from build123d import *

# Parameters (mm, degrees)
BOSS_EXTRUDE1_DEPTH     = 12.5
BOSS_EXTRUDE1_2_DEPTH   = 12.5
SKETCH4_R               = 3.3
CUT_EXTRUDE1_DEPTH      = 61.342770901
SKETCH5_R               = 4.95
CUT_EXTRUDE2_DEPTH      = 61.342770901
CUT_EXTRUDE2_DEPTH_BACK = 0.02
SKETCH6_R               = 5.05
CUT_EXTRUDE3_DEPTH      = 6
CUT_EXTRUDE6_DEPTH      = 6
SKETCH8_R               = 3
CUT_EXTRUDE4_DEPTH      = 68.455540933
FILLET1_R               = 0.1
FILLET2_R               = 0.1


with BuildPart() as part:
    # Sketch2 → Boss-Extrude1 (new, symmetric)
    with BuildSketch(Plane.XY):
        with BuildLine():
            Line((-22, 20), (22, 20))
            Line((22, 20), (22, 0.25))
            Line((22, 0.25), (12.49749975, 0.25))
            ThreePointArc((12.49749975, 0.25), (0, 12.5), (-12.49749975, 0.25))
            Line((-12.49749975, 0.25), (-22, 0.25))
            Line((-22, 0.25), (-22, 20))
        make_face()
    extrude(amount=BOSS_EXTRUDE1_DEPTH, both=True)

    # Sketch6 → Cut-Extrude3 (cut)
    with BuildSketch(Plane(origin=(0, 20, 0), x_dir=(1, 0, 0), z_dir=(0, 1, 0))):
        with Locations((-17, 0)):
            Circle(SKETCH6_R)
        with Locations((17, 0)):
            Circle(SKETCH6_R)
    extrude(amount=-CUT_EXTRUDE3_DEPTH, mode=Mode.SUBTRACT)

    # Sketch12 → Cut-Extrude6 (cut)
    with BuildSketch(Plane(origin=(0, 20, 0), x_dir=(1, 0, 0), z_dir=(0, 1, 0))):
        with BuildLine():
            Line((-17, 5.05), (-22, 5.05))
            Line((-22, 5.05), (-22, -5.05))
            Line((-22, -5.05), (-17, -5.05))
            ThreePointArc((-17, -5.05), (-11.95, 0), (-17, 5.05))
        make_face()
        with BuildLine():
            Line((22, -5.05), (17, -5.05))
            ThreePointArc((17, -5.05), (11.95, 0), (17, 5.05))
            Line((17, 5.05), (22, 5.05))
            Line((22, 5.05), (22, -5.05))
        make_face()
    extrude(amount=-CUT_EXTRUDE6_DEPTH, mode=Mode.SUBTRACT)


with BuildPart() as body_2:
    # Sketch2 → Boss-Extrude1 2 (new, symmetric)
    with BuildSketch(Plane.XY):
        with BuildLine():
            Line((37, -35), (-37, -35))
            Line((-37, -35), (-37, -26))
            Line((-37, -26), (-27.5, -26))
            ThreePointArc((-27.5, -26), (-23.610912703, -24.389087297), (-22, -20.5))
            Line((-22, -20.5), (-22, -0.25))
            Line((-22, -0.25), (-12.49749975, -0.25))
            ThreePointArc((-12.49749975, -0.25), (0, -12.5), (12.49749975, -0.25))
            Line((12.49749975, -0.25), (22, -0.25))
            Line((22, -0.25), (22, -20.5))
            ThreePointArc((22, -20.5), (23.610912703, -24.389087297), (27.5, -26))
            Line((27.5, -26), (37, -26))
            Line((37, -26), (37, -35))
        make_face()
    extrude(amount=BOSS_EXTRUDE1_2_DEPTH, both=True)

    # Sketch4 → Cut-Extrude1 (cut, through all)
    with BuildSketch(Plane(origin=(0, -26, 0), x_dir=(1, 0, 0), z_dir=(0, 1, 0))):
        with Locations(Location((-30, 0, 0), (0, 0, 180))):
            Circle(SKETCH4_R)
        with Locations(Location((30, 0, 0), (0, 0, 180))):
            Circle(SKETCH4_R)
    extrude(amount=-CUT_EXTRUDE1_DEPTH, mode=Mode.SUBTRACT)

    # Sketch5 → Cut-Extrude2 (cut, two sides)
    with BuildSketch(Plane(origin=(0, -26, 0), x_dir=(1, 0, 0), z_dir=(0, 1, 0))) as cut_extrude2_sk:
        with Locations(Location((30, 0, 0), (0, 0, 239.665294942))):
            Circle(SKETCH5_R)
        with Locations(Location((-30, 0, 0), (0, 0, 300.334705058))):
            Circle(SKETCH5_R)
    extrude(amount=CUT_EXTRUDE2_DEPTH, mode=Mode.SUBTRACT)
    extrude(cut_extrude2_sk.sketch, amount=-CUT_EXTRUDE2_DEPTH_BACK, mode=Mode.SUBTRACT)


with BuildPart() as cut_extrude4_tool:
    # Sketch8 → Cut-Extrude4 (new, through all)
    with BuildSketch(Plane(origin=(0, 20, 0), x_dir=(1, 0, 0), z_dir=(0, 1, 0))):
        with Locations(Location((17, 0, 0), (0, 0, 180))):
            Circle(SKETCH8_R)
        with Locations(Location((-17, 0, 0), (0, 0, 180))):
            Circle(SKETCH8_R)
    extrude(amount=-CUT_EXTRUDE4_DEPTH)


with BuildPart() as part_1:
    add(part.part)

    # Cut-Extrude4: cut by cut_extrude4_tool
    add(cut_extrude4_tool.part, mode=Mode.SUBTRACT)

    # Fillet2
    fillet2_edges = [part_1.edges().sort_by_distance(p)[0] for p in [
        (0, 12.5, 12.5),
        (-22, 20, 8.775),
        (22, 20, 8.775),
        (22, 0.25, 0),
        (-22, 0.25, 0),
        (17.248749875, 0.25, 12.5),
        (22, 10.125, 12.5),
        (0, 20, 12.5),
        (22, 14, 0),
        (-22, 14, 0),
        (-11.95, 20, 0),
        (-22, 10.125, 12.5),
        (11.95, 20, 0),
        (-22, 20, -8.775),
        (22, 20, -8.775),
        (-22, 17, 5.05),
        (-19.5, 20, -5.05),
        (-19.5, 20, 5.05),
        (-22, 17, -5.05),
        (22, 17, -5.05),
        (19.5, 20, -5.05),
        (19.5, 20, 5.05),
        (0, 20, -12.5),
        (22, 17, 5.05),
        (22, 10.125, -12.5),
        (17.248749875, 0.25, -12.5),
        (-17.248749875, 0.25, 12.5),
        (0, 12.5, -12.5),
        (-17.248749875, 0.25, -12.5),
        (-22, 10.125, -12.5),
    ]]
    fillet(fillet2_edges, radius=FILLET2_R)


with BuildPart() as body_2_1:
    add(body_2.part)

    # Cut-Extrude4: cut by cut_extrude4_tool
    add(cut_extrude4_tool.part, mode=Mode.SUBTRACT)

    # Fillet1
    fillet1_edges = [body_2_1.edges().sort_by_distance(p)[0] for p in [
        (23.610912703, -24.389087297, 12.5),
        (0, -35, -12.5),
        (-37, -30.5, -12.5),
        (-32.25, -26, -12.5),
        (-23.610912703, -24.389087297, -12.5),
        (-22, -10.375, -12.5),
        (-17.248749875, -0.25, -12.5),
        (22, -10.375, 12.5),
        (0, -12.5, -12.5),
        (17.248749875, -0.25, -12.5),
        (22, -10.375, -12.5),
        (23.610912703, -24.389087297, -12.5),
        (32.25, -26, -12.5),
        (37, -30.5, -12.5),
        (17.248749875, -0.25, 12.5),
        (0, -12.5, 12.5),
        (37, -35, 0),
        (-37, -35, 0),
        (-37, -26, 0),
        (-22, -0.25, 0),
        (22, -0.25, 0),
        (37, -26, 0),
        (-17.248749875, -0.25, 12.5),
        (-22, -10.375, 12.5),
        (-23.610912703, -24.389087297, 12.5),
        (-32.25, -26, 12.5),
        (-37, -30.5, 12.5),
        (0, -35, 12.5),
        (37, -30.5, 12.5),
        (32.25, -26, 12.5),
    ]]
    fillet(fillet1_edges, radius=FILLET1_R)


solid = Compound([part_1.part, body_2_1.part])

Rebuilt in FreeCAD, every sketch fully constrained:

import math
import FreeCAD as App
import Part
import Sketcher
from FreeCAD import Vector


def edges_at(feature, points):
    """Names of the edges that pass closest to the given points."""
    edges = feature.Shape.Edges
    near = lambda p: min(range(len(edges)), key=lambda i: edges[i].distToShape(Part.Vertex(*p))[0])
    return sorted({f"Edge{near(p) + 1}" for p in points})

doc = App.newDocument("Part")
body = doc.addObject("PartDesign::Body", "Body")

# Sketch on XY plane
sketch1 = body.newObject("Sketcher::SketchObject", "Sketch")
sketch1.AttachmentSupport = (doc.getObject("XY_Plane"), [""])
sketch1.MapMode = "FlatFace"
sketch1.addGeometry([
    Part.LineSegment(Vector(22, 20, 0), Vector(-22, 20, 0)),  # 0
    Part.LineSegment(Vector(-22, 20, 0), Vector(-22, 0, 0)),  # 1
    Part.LineSegment(Vector(-22, 0, 0), Vector(-12, 0, 0)),  # 2
    Part.ArcOfCircle(Part.Circle(Vector(0, 0, 0), Vector(0, 0, 1), 12), math.radians(1), math.radians(179)),  # 3
    Part.LineSegment(Vector(12, 0, 0), Vector(22, 0, 0)),  # 4
    Part.LineSegment(Vector(22, 0, 0), Vector(22, 20, 0)),  # 5
], False)
sketch1.addConstraint([
    Sketcher.Constraint("Coincident", 0, 2, 1, 1),
    Sketcher.Constraint("Coincident", 1, 2, 2, 1),
    Sketcher.Constraint("Coincident", 2, 2, 3, 2),
    Sketcher.Constraint("Coincident", 3, 1, 4, 1),
    Sketcher.Constraint("Coincident", 4, 2, 5, 1),
    Sketcher.Constraint("Coincident", 5, 2, 0, 1),
    Sketcher.Constraint("Horizontal", 0),
    Sketcher.Constraint("Vertical", 1),
    Sketcher.Constraint("Horizontal", 2),
    Sketcher.Constraint("Horizontal", 4),
    Sketcher.Constraint("Vertical", 5),
    Sketcher.Constraint("Coincident", 3, 3, -1, 1),
    Sketcher.Constraint("Symmetric", 1, 2, 4, 2, -2),
    Sketcher.Constraint("Radius", 3, 12.5),
    Sketcher.Constraint("DistanceX", 0, 2, 0, 1, 44.0),
    Sketcher.Constraint("DistanceY", -1, 1, 0, 2, 20.0),
    Sketcher.Constraint("DistanceY", 1, 2, 1, 1, 19.75),
])
pad1 = body.newObject("PartDesign::Pad", "Pad")
pad1.Profile = sketch1
pad1.Length = 25
pad1.Midplane = True

# Sketch on XZ plane
sketch2 = body.newObject("Sketcher::SketchObject", "Sketch001")
sketch2.AttachmentSupport = (doc.getObject("XZ_Plane"), [""])
sketch2.MapMode = "FlatFace"
sketch2.AttachmentOffset = App.Placement(Vector(0, 0, -20), App.Rotation())
sketch2.addGeometry([
    Part.Circle(Vector(-17, 0, 0), Vector(0, 0, 1), 5),
    Part.Circle(Vector(17, 0, 0), Vector(0, 0, 1), 5),
], False)
sketch2.addConstraint([
    Sketcher.Constraint("Equal", 0, 1),
    Sketcher.Constraint("Symmetric", 0, 3, 1, 3, -1, 1),
    Sketcher.Constraint("PointOnObject", 0, 3, -1),
    Sketcher.Constraint("Diameter", 0, 10.1),
    Sketcher.Constraint("DistanceX", 0, 3, -1, 1, 17.0),
])
pocket1 = body.newObject("PartDesign::Pocket", "Pocket")
pocket1.Profile = sketch2
pocket1.Length = 6
pocket1.Reversed = True

# Sketch on XZ plane
sketch3 = body.newObject("Sketcher::SketchObject", "Sketch002")
sketch3.AttachmentSupport = (doc.getObject("XZ_Plane"), [""])
sketch3.MapMode = "FlatFace"
sketch3.AttachmentOffset = App.Placement(Vector(0, 0, -20), App.Rotation())
sketch3.addGeometry([
    Part.LineSegment(Vector(-17, -5, 0), Vector(-22, -5, 0)),  # 0
    Part.LineSegment(Vector(-22, -5, 0), Vector(-22, 5, 0)),  # 1
    Part.LineSegment(Vector(-22, 5, 0), Vector(-17, 5, 0)),  # 2
    Part.ArcOfCircle(Part.Circle(Vector(-17, 0, 0), Vector(0, 0, 1), 5), math.radians(-90), math.radians(90)),  # 3
    Part.LineSegment(Vector(17, 5, 0), Vector(22, 5, 0)),  # 4
    Part.LineSegment(Vector(22, 5, 0), Vector(22, -5, 0)),  # 5
    Part.LineSegment(Vector(22, -5, 0), Vector(17, -5, 0)),  # 6
    Part.ArcOfCircle(Part.Circle(Vector(17, 0, 0), Vector(0, 0, 1), 5), math.radians(90), math.radians(270)),  # 7
], False)
sketch3.addConstraint([
    Sketcher.Constraint("Coincident", 0, 2, 1, 1),
    Sketcher.Constraint("Coincident", 1, 2, 2, 1),
    Sketcher.Constraint("Tangent", 2, 2, 3, 2),
    Sketcher.Constraint("Tangent", 3, 1, 0, 1),
    Sketcher.Constraint("Coincident", 4, 2, 5, 1),
    Sketcher.Constraint("Coincident", 5, 2, 6, 1),
    Sketcher.Constraint("Tangent", 6, 2, 7, 2),
    Sketcher.Constraint("Tangent", 7, 1, 4, 1),
    Sketcher.Constraint("Horizontal", 0),
    Sketcher.Constraint("Vertical", 1),
    Sketcher.Constraint("Horizontal", 2),
    Sketcher.Constraint("Horizontal", 4),
    Sketcher.Constraint("Vertical", 5),
    Sketcher.Constraint("Horizontal", 6),
    Sketcher.Constraint("Equal", 3, 7),
    Sketcher.Constraint("Symmetric", 3, 3, 7, 3, -1, 1),
    Sketcher.Constraint("Symmetric", 1, 2, 4, 2, -2),
    Sketcher.Constraint("DistanceX", 0, 2, 0, 1, 5.0),
    Sketcher.Constraint("Radius", 3, 5.05),
    Sketcher.Constraint("DistanceX", 3, 3, -1, 1, 17.0),
])
pocket2 = body.newObject("PartDesign::Pocket", "Pocket001")
pocket2.Profile = sketch3
pocket2.Length = 6
pocket2.Reversed = True
body2 = doc.addObject("PartDesign::Body", "Body001")

# Sketch on XY plane
sketch4 = body2.newObject("Sketcher::SketchObject", "Sketch003")
sketch4.AttachmentSupport = (doc.getObject("XY_Plane001"), [""])
sketch4.MapMode = "FlatFace"
sketch4.addGeometry([
    Part.LineSegment(Vector(-37, -35, 0), Vector(37, -35, 0)),  # 0
    Part.LineSegment(Vector(37, -35, 0), Vector(37, -26, 0)),  # 1
    Part.LineSegment(Vector(37, -26, 0), Vector(28, -26, 0)),  # 2
    Part.ArcOfCircle(Part.Circle(Vector(27, -21, 0), Vector(0, 0, 1), 5), math.radians(180), math.radians(270)),  # 3
    Part.LineSegment(Vector(22, -20, 0), Vector(22, 0, 0)),  # 4
    Part.LineSegment(Vector(22, 0, 0), Vector(12, 0, 0)),  # 5
    Part.ArcOfCircle(Part.Circle(Vector(0, 0, 0), Vector(0, 0, 1), 12), math.radians(-179), math.radians(-1)),  # 6
    Part.LineSegment(Vector(-12, 0, 0), Vector(-22, 0, 0)),  # 7
    Part.LineSegment(Vector(-22, 0, 0), Vector(-22, -20, 0)),  # 8
    Part.ArcOfCircle(Part.Circle(Vector(-27, -21, 0), Vector(0, 0, 1), 5), math.radians(-90), math.radians(0)),  # 9
    Part.LineSegment(Vector(-28, -26, 0), Vector(-37, -26, 0)),  # 10
    Part.LineSegment(Vector(-37, -26, 0), Vector(-37, -35, 0)),  # 11
], False)
sketch4.addConstraint([
    Sketcher.Constraint("Coincident", 0, 2, 1, 1),
    Sketcher.Constraint("Coincident", 1, 2, 2, 1),
    Sketcher.Constraint("Tangent", 2, 2, 3, 2),
    Sketcher.Constraint("Tangent", 3, 1, 4, 1),
    Sketcher.Constraint("Coincident", 4, 2, 5, 1),
    Sketcher.Constraint("Coincident", 5, 2, 6, 2),
    Sketcher.Constraint("Coincident", 6, 1, 7, 1),
    Sketcher.Constraint("Coincident", 7, 2, 8, 1),
    Sketcher.Constraint("Tangent", 8, 2, 9, 2),
    Sketcher.Constraint("Tangent", 9, 1, 10, 1),
    Sketcher.Constraint("Coincident", 10, 2, 11, 1),
    Sketcher.Constraint("Coincident", 11, 2, 0, 1),
    Sketcher.Constraint("Horizontal", 0),
    Sketcher.Constraint("Vertical", 1),
    Sketcher.Constraint("Horizontal", 2),
    Sketcher.Constraint("Vertical", 4),
    Sketcher.Constraint("Horizontal", 5),
    Sketcher.Constraint("Horizontal", 7),
    Sketcher.Constraint("Vertical", 8),
    Sketcher.Constraint("Horizontal", 10),
    Sketcher.Constraint("Vertical", 11),
    Sketcher.Constraint("Coincident", 6, 3, -1, 1),
    Sketcher.Constraint("Equal", 3, 9),
    Sketcher.Constraint("Symmetric", 3, 3, 9, 3, -2),
    Sketcher.Constraint("Horizontal", 5, 2, 6, 1),
    Sketcher.Constraint("Equal", 2, 10),
    Sketcher.Constraint("Radius", 3, 5.5),
    Sketcher.Constraint("Radius", 6, 12.5),
    Sketcher.Constraint("DistanceX", 0, 1, 0, 2, 74.0),
    Sketcher.Constraint("DistanceY", 1, 1, 1, 2, 9.0),
    Sketcher.Constraint("DistanceX", 2, 2, 2, 1, 9.5),
    Sketcher.Constraint("DistanceY", 0, 2, -1, 1, 35.0),
    Sketcher.Constraint("DistanceY", 4, 1, 4, 2, 20.25),
])
pad2 = body2.newObject("PartDesign::Pad", "Pad001")
pad2.Profile = sketch4
pad2.Length = 25
pad2.Midplane = True

# Sketch on XZ plane
sketch5 = body2.newObject("Sketcher::SketchObject", "Sketch004")
sketch5.AttachmentSupport = (doc.getObject("XZ_Plane001"), [""])
sketch5.MapMode = "FlatFace"
sketch5.AttachmentOffset = App.Placement(Vector(0, 0, 26), App.Rotation())
sketch5.addGeometry([
    Part.Circle(Vector(-30, 0, 0), Vector(0, 0, 1), 3.3),
    Part.Circle(Vector(30, 0, 0), Vector(0, 0, 1), 3.3),
], False)
sketch5.addConstraint([
    Sketcher.Constraint("Equal", 0, 1),
    Sketcher.Constraint("Symmetric", 0, 3, 1, 3, -1, 1),
    Sketcher.Constraint("PointOnObject", 0, 3, -1),
    Sketcher.Constraint("Diameter", 0, 6.6),
    Sketcher.Constraint("DistanceX", 0, 3, -1, 1, 30.0),
])
pocket3 = body2.newObject("PartDesign::Pocket", "Pocket002")
pocket3.Profile = sketch5
pocket3.Type = "ThroughAll"
pocket3.Reversed = True

# Sketch on XZ plane
sketch6 = body2.newObject("Sketcher::SketchObject", "Sketch005")
sketch6.AttachmentSupport = (doc.getObject("XZ_Plane001"), [""])
sketch6.MapMode = "FlatFace"
sketch6.AttachmentOffset = App.Placement(Vector(0, 0, 26), App.Rotation())
sketch6.addGeometry([
    Part.Circle(Vector(30, 0, 0), Vector(0, 0, 1), 5),
    Part.Circle(Vector(-30, 0, 0), Vector(0, 0, 1), 5),
], False)
sketch6.addConstraint([
    Sketcher.Constraint("Equal", 0, 1),
    Sketcher.Constraint("Symmetric", 0, 3, 1, 3, -1, 1),
    Sketcher.Constraint("PointOnObject", 0, 3, -1),
    Sketcher.Constraint("Diameter", 0, 9.9),
    Sketcher.Constraint("DistanceX", -1, 1, 0, 3, 30.0),
])
pocket4 = body2.newObject("PartDesign::Pocket", "Pocket003")
pocket4.Profile = sketch6
pocket4.Type = "TwoLengths"
pocket4.Length = 61.342771
pocket4.Length2 = 0.02
body3 = doc.addObject("PartDesign::Body", "Body002")
body3.AllowCompound = True

# Sketch on XZ plane
sketch7 = body3.newObject("Sketcher::SketchObject", "Sketch006")
sketch7.AttachmentSupport = (doc.getObject("XZ_Plane002"), [""])
sketch7.MapMode = "FlatFace"
sketch7.AttachmentOffset = App.Placement(Vector(0, 0, -20), App.Rotation())
sketch7.addGeometry([
    Part.Circle(Vector(17, 0, 0), Vector(0, 0, 1), 3),
    Part.Circle(Vector(-17, 0, 0), Vector(0, 0, 1), 3),
], False)
sketch7.addConstraint([
    Sketcher.Constraint("Equal", 0, 1),
    Sketcher.Constraint("Symmetric", 0, 3, 1, 3, -1, 1),
    Sketcher.Constraint("PointOnObject", 0, 3, -1),
    Sketcher.Constraint("Diameter", 0, 6.0),
    Sketcher.Constraint("DistanceX", -1, 1, 0, 3, 17.0),
])
pad3 = body3.newObject("PartDesign::Pad", "Pad002")
pad3.Profile = sketch7
pad3.Length = 68.455541
doc.recompute()

body4 = doc.addObject("PartDesign::Body", "Body003")
body4.BaseFeature = body3
boolean = body.newObject("PartDesign::Boolean", "Boolean")
boolean.Type = "Cut"
boolean.addObjects([body4])
doc.recompute()

fillet = body.newObject("PartDesign::Fillet", "Fillet")
fillet.Base = (boolean, edges_at(boolean, [
    (0, 12.5, 12.5),
    (-22, 20, 8.775),
    (22, 20, 8.775),
    (22, 0.25, 0),
    (-22, 0.25, 0),
    (17.249, 0.25, 12.5),
    (22, 10.125, 12.5),
    (0, 20, 12.5),
    (22, 14, 0),
    (-22, 14, 0),
    (-11.95, 20, 0),
    (-22, 10.125, 12.5),
    (11.95, 20, 0),
    (-22, 20, -8.775),
    (22, 20, -8.775),
    (-22, 17, 5.05),
    (-19.5, 20, -5.05),
    (-19.5, 20, 5.05),
    (-22, 17, -5.05),
    (22, 17, -5.05),
    (19.5, 20, -5.05),
    (19.5, 20, 5.05),
    (0, 20, -12.5),
    (22, 17, 5.05),
    (22, 10.125, -12.5),
    (17.249, 0.25, -12.5),
    (-17.249, 0.25, 12.5),
    (0, 12.5, -12.5),
    (-17.249, 0.25, -12.5),
    (-22, 10.125, -12.5),
]))
fillet.Radius = 0.1
doc.recompute()

boolean2 = body2.newObject("PartDesign::Boolean", "Boolean001")
boolean2.Type = "Cut"
boolean2.addObjects([body3])
doc.recompute()

fillet2 = body2.newObject("PartDesign::Fillet", "Fillet001")
fillet2.Base = (boolean2, edges_at(boolean2, [
    (23.611, -24.389, 12.5),
    (0, -35, -12.5),
    (-37, -30.5, -12.5),
    (-32.25, -26, -12.5),
    (-23.611, -24.389, -12.5),
    (-22, -10.375, -12.5),
    (-17.249, -0.25, -12.5),
    (22, -10.375, 12.5),
    (0, -12.5, -12.5),
    (17.249, -0.25, -12.5),
    (22, -10.375, -12.5),
    (23.611, -24.389, -12.5),
    (32.25, -26, -12.5),
    (37, -30.5, -12.5),
    (17.249, -0.25, 12.5),
    (0, -12.5, 12.5),
    (37, -35, 0),
    (-37, -35, 0),
    (-37, -26, 0),
    (-22, -0.25, 0),
    (22, -0.25, 0),
    (37, -26, 0),
    (-17.249, -0.25, 12.5),
    (-22, -10.375, 12.5),
    (-23.611, -24.389, 12.5),
    (-32.25, -26, 12.5),
    (-37, -30.5, 12.5),
    (0, -35, 12.5),
    (37, -30.5, 12.5),
    (32.25, -26, 12.5),
]))
fillet2.Radius = 0.1

doc.recompute()
